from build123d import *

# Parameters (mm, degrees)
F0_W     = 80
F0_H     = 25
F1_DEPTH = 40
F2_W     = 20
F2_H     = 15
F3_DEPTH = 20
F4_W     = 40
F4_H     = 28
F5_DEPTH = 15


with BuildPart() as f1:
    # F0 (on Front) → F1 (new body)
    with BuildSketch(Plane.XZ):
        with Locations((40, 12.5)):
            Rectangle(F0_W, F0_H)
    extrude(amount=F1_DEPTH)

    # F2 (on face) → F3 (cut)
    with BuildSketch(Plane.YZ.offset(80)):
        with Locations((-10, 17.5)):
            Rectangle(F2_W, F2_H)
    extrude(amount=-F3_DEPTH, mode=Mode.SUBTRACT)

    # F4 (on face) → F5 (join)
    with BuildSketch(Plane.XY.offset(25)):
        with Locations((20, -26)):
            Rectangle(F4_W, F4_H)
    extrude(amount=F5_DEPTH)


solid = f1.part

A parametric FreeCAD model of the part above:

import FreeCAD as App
import Part
import Sketcher
from FreeCAD import Vector
Q = App.Units.Quantity

doc = App.newDocument("Part")
body = doc.addObject("PartDesign::Body", "Body")

# Sketch on XZ plane
sketch1 = body.newObject("Sketcher::SketchObject", "Sketch")
sketch1.AttachmentSupport = (doc.getObject("XZ_Plane"), [""])
sketch1.MapMode = "FlatFace"
sketch1.addGeometry(Part.LineSegment(Vector(0, 25, 0), Vector(0, 0, 0)), False)
sketch1.addGeometry(Part.LineSegment(Vector(0, 0, 0), Vector(80, 0, 0)), False)
sketch1.addGeometry(Part.LineSegment(Vector(80, 0, 0), Vector(80, 25, 0)), False)
sketch1.addGeometry(Part.LineSegment(Vector(80, 25, 0), Vector(0, 25, 0)), False)
sketch1.addConstraint(Sketcher.Constraint("Coincident", 0, 2, 1, 1))
sketch1.addConstraint(Sketcher.Constraint("Coincident", 1, 2, 2, 1))
sketch1.addConstraint(Sketcher.Constraint("Coincident", 2, 2, 3, 1))
sketch1.addConstraint(Sketcher.Constraint("Coincident", 3, 2, 0, 1))
sketch1.addConstraint(Sketcher.Constraint("Vertical", 0))
sketch1.addConstraint(Sketcher.Constraint("Horizontal", 1))
sketch1.addConstraint(Sketcher.Constraint("Vertical", 2))
sketch1.addConstraint(Sketcher.Constraint("Horizontal", 3))
sketch1.addConstraint(Sketcher.Constraint("Coincident", 0, 2, -1, 1))
sketch1.addConstraint(Sketcher.Constraint("DistanceX", 1, 1, 1, 2, Q("80 mm")))
sketch1.addConstraint(Sketcher.Constraint("DistanceY", 0, 2, 0, 1, Q("25 mm")))
pad1 = body.newObject("PartDesign::Pad", "Pad")
pad1.Profile = sketch1
pad1.Length = 40

# Sketch on YZ plane
sketch2 = body.newObject("Sketcher::SketchObject", "Sketch001")
sketch2.AttachmentSupport = (doc.getObject("YZ_Plane"), [""])
sketch2.MapMode = "FlatFace"
sketch2.AttachmentOffset = App.Placement(Vector(0, 0, 80), App.Rotation())
sketch2.addGeometry(Part.LineSegment(Vector(-20, 25, 0), Vector(-20, 10, 0)), False)
sketch2.addGeometry(Part.LineSegment(Vector(-20, 10, 0), Vector(0, 10, 0)), False)
sketch2.addGeometry(Part.LineSegment(Vector(0, 10, 0), Vector(0, 25, 0)), False)
sketch2.addGeometry(Part.LineSegment(Vector(0, 25, 0), Vector(-20, 25, 0)), False)
sketch2.addConstraint(Sketcher.Constraint("Coincident", 0, 2, 1, 1))
sketch2.addConstraint(Sketcher.Constraint("Coincident", 1, 2, 2, 1))
sketch2.addConstraint(Sketcher.Constraint("Coincident", 2, 2, 3, 1))
sketch2.addConstraint(Sketcher.Constraint("Coincident", 3, 2, 0, 1))
sketch2.addConstraint(Sketcher.Constraint("Vertical", 0))
sketch2.addConstraint(Sketcher.Constraint("Horizontal", 1))
sketch2.addConstraint(Sketcher.Constraint("Vertical", 2))
sketch2.addConstraint(Sketcher.Constraint("Horizontal", 3))
sketch2.addConstraint(Sketcher.Constraint("PointOnObject", 1, 2, -2))
sketch2.addConstraint(Sketcher.Constraint("DistanceX", 1, 1, 1, 2, Q("20 mm")))
sketch2.addConstraint(Sketcher.Constraint("DistanceY", 0, 2, 0, 1, Q("15 mm")))
sketch2.addConstraint(Sketcher.Constraint("DistanceY", -1, 1, 0, 2, Q("10 mm")))
pocket1 = body.newObject("PartDesign::Pocket", "Pocket")
pocket1.Profile = sketch2
pocket1.Length = 20

# Sketch on XY plane
sketch3 = body.newObject("Sketcher::SketchObject", "Sketch002")
sketch3.AttachmentSupport = (doc.getObject("XY_Plane"), [""])
sketch3.MapMode = "FlatFace"
sketch3.AttachmentOffset = App.Placement(Vector(0, 0, 25), App.Rotation())
sketch3.addGeometry(Part.LineSegment(Vector(0, -12, 0), Vector(0, -40, 0)), False)
sketch3.addGeometry(Part.LineSegment(Vector(0, -40, 0), Vector(40, -40, 0)), False)
sketch3.addGeometry(Part.LineSegment(Vector(40, -40, 0), Vector(40, -12, 0)), False)
sketch3.addGeometry(Part.LineSegment(Vector(40, -12, 0), Vector(0, -12, 0)), False)
sketch3.addConstraint(Sketcher.Constraint("Coincident", 0, 2, 1, 1))
sketch3.addConstraint(Sketcher.Constraint("Coincident", 1, 2, 2, 1))
sketch3.addConstraint(Sketcher.Constraint("Coincident", 2, 2, 3, 1))
sketch3.addConstraint(Sketcher.Constraint("Coincident", 3, 2, 0, 1))
sketch3.addConstraint(Sketcher.Constraint("Vertical", 0))
sketch3.addConstraint(Sketcher.Constraint("Horizontal", 1))
sketch3.addConstraint(Sketcher.Constraint("Vertical", 2))
sketch3.addConstraint(Sketcher.Constraint("Horizontal", 3))
sketch3.addConstraint(Sketcher.Constraint("PointOnObject", 0, 2, -2))
sketch3.addConstraint(Sketcher.Constraint("DistanceX", 1, 1, 1, 2, Q("40 mm")))
sketch3.addConstraint(Sketcher.Constraint("DistanceY", 0, 2, 0, 1, Q("28 mm")))
sketch3.addConstraint(Sketcher.Constraint("DistanceY", 0, 2, -1, 1, Q("40 mm")))
pad2 = body.newObject("PartDesign::Pad", "Pad001")
pad2.Profile = sketch3
pad2.Length = 15

doc.recompute()
